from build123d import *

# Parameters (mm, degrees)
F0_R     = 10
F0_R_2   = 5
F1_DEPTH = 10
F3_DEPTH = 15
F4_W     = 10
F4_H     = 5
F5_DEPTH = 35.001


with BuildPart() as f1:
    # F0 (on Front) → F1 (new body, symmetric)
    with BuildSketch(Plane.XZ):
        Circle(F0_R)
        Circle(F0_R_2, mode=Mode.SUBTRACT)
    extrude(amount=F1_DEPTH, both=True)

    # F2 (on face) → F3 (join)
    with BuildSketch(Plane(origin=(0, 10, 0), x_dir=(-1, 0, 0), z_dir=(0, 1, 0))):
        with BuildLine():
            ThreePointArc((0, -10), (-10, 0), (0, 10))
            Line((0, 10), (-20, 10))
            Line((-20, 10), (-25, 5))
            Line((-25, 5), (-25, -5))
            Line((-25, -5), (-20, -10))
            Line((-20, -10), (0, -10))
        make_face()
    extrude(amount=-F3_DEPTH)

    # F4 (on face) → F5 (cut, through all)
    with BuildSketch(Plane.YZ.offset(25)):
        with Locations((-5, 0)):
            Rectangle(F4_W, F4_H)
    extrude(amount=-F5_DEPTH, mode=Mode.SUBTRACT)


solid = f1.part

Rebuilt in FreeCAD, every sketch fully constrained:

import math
import FreeCAD as App
import Part
import Sketcher

V = App.Vector
Q = App.Units.Quantity

doc = App.newDocument("Part")
body = doc.addObject("PartDesign::Body", "Body")

# Sketch on XZ plane
sketch1 = body.newObject("Sketcher::SketchObject", "Sketch")
sketch1.AttachmentSupport = (doc.getObject("XZ_Plane"), [""])
sketch1.MapMode = "FlatFace"
sketch1.addGeometry([
    Part.Circle(V(0, 0, 0), V(0, 0, 1), 10),
    Part.Circle(V(0, 0, 0), V(0, 0, 1), 5),
], False)
sketch1.addConstraint([
    Sketcher.Constraint("Coincident", 0, 3, -1, 1),
    Sketcher.Constraint("Coincident", 1, 3, -1, 1),
    Sketcher.Constraint("Diameter", 0, Q("20 mm")),
    Sketcher.Constraint("Diameter", 1, Q("10 mm")),
])
pad1 = body.newObject("PartDesign::Pad", "Pad")
pad1.Profile = sketch1
pad1.Length = 20
pad1.Midplane = True

# Sketch on XZ plane
sketch2 = body.newObject("Sketcher::SketchObject", "Sketch001")
sketch2.AttachmentSupport = (doc.getObject("XZ_Plane"), [""])
sketch2.MapMode = "FlatFace"
sketch2.AttachmentOffset = App.Placement(V(0, 0, -10), App.Rotation())
sketch2.addGeometry([
    Part.ArcOfCircle(Part.Circle(V(0, 0, 0), V(0, 0, 1), 10), math.radians(-90), math.radians(90)),  # 0
    Part.LineSegment(V(0, 10, 0), V(20, 10, 0)),  # 1
    Part.LineSegment(V(20, 10, 0), V(25, 5, 0)),  # 2
    Part.LineSegment(V(25, 5, 0), V(25, -5, 0)),  # 3
    Part.LineSegment(V(25, -5, 0), V(20, -10, 0)),  # 4
    Part.LineSegment(V(20, -10, 0), V(0, -10, 0)),  # 5
], False)
sketch2.addConstraint([
    Sketcher.Constraint("Tangent", 0, 2, 1, 1),
    Sketcher.Constraint("Coincident", 1, 2, 2, 1),
    Sketcher.Constraint("Coincident", 2, 2, 3, 1),
    Sketcher.Constraint("Coincident", 3, 2, 4, 1),
    Sketcher.Constraint("Coincident", 4, 2, 5, 1),
    Sketcher.Constraint("Tangent", 5, 2, 0, 1),
    Sketcher.Constraint("Horizontal", 1),
    Sketcher.Constraint("Vertical", 3),
    Sketcher.Constraint("Horizontal", 5),
    Sketcher.Constraint("Coincident", 0, 3, -1, 1),
    Sketcher.Constraint("Perpendicular", 2, 4),
    Sketcher.Constraint("Vertical", 1, 2, 4, 2),
    Sketcher.Constraint("Equal", 2, 4),
    Sketcher.Constraint("Radius", 0, Q("10 mm")),
    Sketcher.Constraint("DistanceX", 1, 1, 1, 2, Q("20 mm")),
    Sketcher.Constraint("DistanceY", 3, 2, 3, 1, Q("10 mm")),
])
pad2 = body.newObject("PartDesign::Pad", "Pad001")
pad2.Profile = sketch2
pad2.Length = 15

# Sketch on YZ plane
sketch3 = body.newObject("Sketcher::SketchObject", "Sketch002")
sketch3.AttachmentSupport = (doc.getObject("YZ_Plane"), [""])
sketch3.MapMode = "FlatFace"
sketch3.AttachmentOffset = App.Placement(V(0, 0, 25), App.Rotation())
sketch3.addGeometry([
    Part.LineSegment(V(-10, 2, 0), V(-10, -2, 0)),
    Part.LineSegment(V(-10, -2, 0), V(0, -2, 0)),
    Part.LineSegment(V(0, -2, 0), V(0, 2, 0)),
    Part.LineSegment(V(0, 2, 0), V(-10, 2, 0)),
], False)
sketch3.addConstraint([
    Sketcher.Constraint("Coincident", 0, 2, 1, 1),
    Sketcher.Constraint("Coincident", 1, 2, 2, 1),
    Sketcher.Constraint("Coincident", 2, 2, 3, 1),
    Sketcher.Constraint("Coincident", 3, 2, 0, 1),
    Sketcher.Constraint("Vertical", 0),
    Sketcher.Constraint("Horizontal", 1),
    Sketcher.Constraint("Vertical", 2),
    Sketcher.Constraint("Horizontal", 3),
    Sketcher.Constraint("Symmetric", 1, 2, 2, 2, -1, 1),
    Sketcher.Constraint("DistanceX", 1, 1, 1, 2, Q("10 mm")),
    Sketcher.Constraint("DistanceY", 0, 2, 0, 1, Q("5 mm")),
])
pocket1 = body.newObject("PartDesign::Pocket", "Pocket")
pocket1.Profile = sketch3
pocket1.Type = "ThroughAll"

doc.recompute()
